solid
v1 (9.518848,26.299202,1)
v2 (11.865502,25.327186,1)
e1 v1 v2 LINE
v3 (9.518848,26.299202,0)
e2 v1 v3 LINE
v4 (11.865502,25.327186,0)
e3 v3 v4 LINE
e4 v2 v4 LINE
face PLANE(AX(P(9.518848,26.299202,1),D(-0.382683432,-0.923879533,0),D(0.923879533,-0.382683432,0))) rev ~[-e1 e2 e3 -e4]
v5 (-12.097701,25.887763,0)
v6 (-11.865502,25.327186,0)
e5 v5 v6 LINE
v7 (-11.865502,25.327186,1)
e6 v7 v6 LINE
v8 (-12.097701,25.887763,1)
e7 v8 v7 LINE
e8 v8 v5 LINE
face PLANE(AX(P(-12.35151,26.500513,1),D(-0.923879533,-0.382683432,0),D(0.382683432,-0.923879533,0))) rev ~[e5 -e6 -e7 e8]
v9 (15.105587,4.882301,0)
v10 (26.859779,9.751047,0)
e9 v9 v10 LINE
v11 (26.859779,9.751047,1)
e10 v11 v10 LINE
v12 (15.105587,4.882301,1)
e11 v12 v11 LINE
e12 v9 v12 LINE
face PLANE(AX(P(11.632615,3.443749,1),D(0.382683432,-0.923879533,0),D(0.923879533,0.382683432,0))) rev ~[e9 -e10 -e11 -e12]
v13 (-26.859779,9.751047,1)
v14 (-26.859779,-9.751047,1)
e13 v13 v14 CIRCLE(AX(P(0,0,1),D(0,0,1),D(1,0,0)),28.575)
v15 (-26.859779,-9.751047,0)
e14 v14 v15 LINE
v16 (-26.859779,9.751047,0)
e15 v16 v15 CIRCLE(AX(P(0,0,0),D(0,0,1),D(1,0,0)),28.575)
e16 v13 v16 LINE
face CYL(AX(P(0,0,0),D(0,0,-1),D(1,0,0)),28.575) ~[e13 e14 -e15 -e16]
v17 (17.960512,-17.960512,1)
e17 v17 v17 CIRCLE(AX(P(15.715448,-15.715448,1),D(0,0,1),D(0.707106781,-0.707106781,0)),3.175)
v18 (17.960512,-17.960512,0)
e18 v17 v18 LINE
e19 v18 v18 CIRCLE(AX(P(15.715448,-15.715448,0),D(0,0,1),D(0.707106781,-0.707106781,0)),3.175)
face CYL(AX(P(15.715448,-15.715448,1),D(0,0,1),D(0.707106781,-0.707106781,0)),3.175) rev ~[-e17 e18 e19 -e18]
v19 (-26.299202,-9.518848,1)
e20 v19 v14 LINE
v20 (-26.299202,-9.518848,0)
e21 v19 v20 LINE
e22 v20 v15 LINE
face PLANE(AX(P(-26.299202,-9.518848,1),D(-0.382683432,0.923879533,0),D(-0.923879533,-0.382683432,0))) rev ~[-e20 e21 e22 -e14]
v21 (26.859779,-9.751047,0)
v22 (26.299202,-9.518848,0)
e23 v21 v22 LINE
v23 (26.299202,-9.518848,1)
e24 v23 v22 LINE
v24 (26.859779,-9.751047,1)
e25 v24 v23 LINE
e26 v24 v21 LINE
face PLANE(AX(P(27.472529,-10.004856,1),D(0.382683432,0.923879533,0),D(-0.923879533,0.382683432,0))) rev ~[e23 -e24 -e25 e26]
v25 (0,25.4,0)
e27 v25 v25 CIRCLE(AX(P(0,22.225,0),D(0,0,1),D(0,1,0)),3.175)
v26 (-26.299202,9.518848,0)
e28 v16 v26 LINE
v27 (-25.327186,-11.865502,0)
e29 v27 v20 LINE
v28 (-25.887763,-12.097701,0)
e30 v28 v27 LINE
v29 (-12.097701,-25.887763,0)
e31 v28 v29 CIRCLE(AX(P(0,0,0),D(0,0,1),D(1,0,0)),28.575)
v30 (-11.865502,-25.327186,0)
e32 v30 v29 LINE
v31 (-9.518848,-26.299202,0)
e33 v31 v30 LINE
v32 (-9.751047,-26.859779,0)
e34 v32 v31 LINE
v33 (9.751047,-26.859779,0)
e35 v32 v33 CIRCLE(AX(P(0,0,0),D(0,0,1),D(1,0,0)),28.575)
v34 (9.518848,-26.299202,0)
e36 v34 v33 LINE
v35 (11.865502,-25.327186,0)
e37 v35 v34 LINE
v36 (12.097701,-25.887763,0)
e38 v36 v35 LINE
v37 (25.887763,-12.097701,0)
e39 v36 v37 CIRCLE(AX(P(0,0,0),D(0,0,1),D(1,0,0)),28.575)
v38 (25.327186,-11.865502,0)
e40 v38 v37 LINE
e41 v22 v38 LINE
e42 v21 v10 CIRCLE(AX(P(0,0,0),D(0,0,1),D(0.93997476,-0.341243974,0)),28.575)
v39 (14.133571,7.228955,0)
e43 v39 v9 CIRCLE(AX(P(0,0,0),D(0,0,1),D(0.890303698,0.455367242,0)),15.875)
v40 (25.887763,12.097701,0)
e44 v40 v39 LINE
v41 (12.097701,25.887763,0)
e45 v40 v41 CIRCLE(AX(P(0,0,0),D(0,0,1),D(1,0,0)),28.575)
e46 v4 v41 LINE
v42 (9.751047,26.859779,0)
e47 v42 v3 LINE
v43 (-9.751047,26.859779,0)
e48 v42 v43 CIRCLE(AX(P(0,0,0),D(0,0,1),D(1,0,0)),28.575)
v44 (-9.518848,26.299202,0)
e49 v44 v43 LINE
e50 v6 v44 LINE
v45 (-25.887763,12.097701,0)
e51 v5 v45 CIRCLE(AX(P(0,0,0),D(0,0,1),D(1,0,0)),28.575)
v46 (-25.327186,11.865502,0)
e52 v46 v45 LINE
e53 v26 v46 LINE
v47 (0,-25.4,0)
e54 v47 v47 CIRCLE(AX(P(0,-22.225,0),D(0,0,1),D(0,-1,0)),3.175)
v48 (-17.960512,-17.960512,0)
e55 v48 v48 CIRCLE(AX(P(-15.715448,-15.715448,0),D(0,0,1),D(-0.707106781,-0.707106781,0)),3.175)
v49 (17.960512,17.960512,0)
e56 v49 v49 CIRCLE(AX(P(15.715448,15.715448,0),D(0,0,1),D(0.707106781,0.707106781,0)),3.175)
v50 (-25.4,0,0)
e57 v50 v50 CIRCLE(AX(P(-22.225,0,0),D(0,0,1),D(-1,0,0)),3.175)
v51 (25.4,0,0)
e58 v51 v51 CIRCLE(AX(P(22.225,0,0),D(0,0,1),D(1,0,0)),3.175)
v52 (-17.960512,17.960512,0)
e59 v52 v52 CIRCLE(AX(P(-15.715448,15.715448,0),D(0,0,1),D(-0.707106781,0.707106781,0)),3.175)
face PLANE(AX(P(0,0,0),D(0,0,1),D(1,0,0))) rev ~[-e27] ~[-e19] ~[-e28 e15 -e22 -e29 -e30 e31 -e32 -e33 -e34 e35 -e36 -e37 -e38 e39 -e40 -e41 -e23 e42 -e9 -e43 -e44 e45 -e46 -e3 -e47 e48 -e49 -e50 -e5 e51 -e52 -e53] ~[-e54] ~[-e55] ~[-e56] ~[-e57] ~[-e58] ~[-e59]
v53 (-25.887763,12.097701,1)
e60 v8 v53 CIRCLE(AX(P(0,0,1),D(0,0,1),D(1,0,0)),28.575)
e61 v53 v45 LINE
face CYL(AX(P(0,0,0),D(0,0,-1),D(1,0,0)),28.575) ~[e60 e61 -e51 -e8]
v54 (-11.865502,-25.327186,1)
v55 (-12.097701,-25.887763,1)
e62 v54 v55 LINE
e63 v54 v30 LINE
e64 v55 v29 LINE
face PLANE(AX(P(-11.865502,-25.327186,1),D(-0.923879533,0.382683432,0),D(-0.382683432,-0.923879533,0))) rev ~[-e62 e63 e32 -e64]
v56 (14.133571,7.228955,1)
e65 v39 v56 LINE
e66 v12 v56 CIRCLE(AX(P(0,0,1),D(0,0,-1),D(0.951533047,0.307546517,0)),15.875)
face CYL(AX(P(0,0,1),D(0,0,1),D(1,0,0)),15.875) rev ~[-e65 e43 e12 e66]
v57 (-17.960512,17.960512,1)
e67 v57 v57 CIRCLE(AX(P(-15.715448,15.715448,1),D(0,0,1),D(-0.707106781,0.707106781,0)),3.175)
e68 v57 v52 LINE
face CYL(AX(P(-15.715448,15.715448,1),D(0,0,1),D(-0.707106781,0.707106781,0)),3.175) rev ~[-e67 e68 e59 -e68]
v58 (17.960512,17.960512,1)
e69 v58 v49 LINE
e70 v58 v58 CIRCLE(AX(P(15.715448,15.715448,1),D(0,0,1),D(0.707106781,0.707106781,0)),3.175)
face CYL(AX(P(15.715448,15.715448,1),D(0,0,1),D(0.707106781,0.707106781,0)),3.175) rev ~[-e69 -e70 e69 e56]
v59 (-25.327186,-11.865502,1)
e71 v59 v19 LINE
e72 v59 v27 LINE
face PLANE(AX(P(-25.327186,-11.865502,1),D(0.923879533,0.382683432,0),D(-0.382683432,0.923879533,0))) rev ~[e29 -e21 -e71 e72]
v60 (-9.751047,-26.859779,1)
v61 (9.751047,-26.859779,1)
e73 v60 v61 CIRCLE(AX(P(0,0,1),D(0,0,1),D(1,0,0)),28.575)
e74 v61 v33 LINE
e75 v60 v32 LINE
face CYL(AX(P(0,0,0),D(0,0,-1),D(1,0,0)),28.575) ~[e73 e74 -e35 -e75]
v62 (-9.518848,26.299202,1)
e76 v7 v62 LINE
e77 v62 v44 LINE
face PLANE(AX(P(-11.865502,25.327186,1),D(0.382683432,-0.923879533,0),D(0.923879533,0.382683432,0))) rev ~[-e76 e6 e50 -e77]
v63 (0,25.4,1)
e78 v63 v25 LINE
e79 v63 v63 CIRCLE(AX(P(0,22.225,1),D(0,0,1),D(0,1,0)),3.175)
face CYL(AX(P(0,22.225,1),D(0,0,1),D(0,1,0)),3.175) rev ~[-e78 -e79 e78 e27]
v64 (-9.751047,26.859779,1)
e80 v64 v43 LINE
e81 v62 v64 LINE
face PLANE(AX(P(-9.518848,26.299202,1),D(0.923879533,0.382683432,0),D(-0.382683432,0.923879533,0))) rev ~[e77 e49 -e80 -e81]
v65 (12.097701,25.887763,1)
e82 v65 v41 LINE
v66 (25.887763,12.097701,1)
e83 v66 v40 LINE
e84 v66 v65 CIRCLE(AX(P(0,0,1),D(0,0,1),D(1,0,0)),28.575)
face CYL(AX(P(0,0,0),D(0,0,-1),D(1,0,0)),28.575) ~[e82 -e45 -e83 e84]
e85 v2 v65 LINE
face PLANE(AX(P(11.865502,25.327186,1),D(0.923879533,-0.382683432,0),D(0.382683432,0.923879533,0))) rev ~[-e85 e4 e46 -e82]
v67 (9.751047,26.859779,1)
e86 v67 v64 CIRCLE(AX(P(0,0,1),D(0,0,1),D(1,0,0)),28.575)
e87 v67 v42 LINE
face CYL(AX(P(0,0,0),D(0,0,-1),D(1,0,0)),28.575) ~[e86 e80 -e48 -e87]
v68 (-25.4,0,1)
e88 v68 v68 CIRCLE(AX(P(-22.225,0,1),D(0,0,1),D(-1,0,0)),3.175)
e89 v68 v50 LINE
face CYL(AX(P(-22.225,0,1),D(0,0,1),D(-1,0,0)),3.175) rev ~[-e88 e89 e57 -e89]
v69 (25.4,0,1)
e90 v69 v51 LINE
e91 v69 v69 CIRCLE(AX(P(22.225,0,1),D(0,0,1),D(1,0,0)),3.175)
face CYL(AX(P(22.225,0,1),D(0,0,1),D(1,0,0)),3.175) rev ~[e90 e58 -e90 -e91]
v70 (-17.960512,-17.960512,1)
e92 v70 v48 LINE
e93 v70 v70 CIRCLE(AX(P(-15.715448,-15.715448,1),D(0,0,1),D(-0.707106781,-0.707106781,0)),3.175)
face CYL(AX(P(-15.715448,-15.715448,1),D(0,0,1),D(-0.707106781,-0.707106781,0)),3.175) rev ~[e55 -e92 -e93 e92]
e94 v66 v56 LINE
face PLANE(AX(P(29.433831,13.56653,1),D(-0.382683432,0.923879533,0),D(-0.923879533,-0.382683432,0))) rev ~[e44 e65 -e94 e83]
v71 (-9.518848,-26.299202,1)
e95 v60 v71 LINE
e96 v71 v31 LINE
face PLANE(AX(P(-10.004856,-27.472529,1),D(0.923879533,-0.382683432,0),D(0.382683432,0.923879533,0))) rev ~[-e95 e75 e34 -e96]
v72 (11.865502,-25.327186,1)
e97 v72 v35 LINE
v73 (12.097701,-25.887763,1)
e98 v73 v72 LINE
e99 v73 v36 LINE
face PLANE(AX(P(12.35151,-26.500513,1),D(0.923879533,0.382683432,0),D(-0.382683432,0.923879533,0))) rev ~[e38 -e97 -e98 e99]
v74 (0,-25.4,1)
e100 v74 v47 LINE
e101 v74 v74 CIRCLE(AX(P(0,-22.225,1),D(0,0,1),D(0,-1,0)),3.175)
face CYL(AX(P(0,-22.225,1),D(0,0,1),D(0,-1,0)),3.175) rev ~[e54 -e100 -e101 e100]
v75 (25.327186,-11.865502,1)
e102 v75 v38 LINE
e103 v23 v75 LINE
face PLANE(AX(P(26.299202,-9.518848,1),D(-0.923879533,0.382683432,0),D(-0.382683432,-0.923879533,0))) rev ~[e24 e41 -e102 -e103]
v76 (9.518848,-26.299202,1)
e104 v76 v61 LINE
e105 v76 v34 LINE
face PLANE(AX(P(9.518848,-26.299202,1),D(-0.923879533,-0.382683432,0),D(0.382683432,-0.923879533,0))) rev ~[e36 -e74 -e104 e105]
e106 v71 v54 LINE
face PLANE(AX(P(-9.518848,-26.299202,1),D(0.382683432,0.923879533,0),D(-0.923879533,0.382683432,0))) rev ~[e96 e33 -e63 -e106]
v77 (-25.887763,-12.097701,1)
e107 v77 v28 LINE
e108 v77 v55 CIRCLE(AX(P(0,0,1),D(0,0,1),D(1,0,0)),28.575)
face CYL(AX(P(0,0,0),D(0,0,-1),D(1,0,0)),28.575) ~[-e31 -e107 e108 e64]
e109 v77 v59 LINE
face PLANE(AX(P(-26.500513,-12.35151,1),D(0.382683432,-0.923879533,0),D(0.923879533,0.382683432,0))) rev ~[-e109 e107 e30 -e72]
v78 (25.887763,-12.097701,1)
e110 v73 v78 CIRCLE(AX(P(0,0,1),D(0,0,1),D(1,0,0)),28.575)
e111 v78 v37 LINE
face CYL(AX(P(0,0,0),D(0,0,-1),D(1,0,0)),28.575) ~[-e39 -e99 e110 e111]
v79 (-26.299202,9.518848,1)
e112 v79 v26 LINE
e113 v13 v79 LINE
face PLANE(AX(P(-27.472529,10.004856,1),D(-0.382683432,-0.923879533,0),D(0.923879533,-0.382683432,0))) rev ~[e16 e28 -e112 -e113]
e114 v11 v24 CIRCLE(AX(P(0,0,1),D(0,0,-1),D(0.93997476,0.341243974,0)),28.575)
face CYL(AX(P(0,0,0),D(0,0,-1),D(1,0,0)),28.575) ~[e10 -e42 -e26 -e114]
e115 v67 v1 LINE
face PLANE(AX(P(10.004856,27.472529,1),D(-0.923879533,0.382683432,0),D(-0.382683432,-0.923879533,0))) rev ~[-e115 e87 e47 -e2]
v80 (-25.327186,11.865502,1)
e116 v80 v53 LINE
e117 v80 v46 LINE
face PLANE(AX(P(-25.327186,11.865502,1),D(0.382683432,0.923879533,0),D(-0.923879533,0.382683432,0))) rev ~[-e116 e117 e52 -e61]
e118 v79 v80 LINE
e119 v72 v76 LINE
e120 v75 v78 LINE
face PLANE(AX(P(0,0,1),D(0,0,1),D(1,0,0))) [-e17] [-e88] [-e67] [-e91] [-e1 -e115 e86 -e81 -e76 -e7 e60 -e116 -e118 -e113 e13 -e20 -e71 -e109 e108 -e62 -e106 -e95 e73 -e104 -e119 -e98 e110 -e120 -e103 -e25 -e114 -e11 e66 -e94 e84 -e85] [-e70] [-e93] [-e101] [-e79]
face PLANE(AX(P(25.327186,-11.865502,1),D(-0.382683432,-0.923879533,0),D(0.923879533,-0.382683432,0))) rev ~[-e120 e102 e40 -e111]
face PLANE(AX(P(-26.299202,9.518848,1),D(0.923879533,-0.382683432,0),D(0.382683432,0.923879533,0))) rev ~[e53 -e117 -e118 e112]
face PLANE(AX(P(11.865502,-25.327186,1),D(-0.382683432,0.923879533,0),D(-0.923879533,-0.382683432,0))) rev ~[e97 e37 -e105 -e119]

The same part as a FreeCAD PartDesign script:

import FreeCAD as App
import Part
import Sketcher
from FreeCAD import Vector
Q = App.Units.Quantity


def add_polygon(sketch, points):
    """Adds a closed chain of lines whose ends are joined by coincident constraints."""
    first, n = sketch.GeometryCount, len(points)
    for a, b in zip(points, points[1:] + points[:1]):
        sketch.addGeometry(Part.LineSegment(App.Vector(*a, 0), App.Vector(*b, 0)), False)
    for i in range(n):
        sketch.addConstraint(Sketcher.Constraint("Coincident", first + i, 2, first + (i + 1) % n, 1))

doc = App.newDocument("Part")
body = doc.addObject("PartDesign::Body", "Body")

sketch1 = body.newObject("Sketcher::SketchObject", "Sketch")
sketch1.AttachmentSupport = (doc.getObject("XY_Plane"), [""])
sketch1.MapMode = "FlatFace"
sketch1.addGeometry(Part.Circle(Vector(0, 0, 0), Vector(0, 0, 1), 28.575), False)
sketch1.addConstraint([
    Sketcher.Constraint("Coincident", 0, 3, -1, 1),
    Sketcher.Constraint("Diameter", 0, Q("2.25 in")),
])
pad1 = body.newObject("PartDesign::Pad", "Pad")
pad1.Profile = sketch1
pad1.Length = 1

sketch2 = body.newObject("Sketcher::SketchObject", "Sketch001")
sketch2.AttachmentSupport = (doc.getObject("XY_Plane"), [""])
sketch2.MapMode = "FlatFace"
sketch2.AttachmentOffset = App.Placement(Vector(0, 0, 1), App.Rotation())
sketch2.addGeometry(Part.Circle(Vector(0, 0, 0), Vector(0, 0, 1), 15.875), False)
sketch2.addConstraint([
    Sketcher.Constraint("Coincident", 0, 3, -1, 1),
    Sketcher.Constraint("Diameter", 0, Q("1.25 in")),
])
pocket1 = body.newObject("PartDesign::Pocket", "Pocket")
pocket1.Profile = sketch2
pocket1.Type = "ThroughAll"

sketch3 = body.newObject("Sketcher::SketchObject", "Sketch002")
sketch3.AttachmentSupport = (doc.getObject("XY_Plane"), [""])
sketch3.MapMode = "FlatFace"
sketch3.AttachmentOffset = App.Placement(Vector(0, 0, 1), App.Rotation())
sketch3.addGeometry(Part.Circle(Vector(22.225, 0, 0), Vector(0, 0, 1), 3.175), False)
sketch3.addConstraint([
    Sketcher.Constraint("PointOnObject", 0, 3, -1),
    Sketcher.Constraint("Diameter", 0, Q("0.25 in")),
    Sketcher.Constraint("DistanceX", -1, 1, 0, 3, Q("0.875 in")),
])
pocket2 = body.newObject("PartDesign::Pocket", "Pocket001")
pocket2.Profile = sketch3
pocket2.Type = "ThroughAll"
doc.recompute()

polarpattern = body.newObject("PartDesign::PolarPattern", "PolarPattern")
polarpattern.Originals = [pocket2]
polarpattern.Axis = (doc.getObject("Z_Axis"), [""])
polarpattern.Angle = 360
polarpattern.Occurrences = 8
body.Tip = polarpattern

sketch4 = body.newObject("Sketcher::SketchObject", "Sketch003")
sketch4.AttachmentSupport = (doc.getObject("XY_Plane"), [""])
sketch4.MapMode = "FlatFace"
sketch4.AttachmentOffset = App.Placement(Vector(0, 0, 1), App.Rotation())
add_polygon(sketch4, [(29.433831, 13.56653), (10.660599, 5.790403), (11.632615, 3.443749), (30.405847, 11.219876)])
add_polygon(sketch4, [(12.35151, 26.500513), (10.004856, 27.472529), (9.518848, 26.299202), (11.865502, 25.327186)])
add_polygon(sketch4, [(-10.004856, 27.472529), (-12.35151, 26.500513), (-11.865502, 25.327186), (-9.518848, 26.299202)])
add_polygon(sketch4, [(-26.500513, 12.35151), (-27.472529, 10.004856), (-26.299202, 9.518848), (-25.327186, 11.865502)])
add_polygon(sketch4, [(-27.472529, -10.004856), (-26.500513, -12.35151), (-25.327186, -11.865502), (-26.299202, -9.518848)])
add_polygon(sketch4, [(-12.35151, -26.500513), (-10.004856, -27.472529), (-9.518848, -26.299202), (-11.865502, -25.327186)])
add_polygon(sketch4, [(10.004856, -27.472529), (12.35151, -26.500513), (11.865502, -25.327186), (9.518848, -26.299202)])
add_polygon(sketch4, [(26.500513, -12.35151), (27.472529, -10.004856), (26.299202, -9.518848), (25.327186, -11.865502)])
sketch4.addConstraint([
    Sketcher.Constraint("Symmetric", 4, 2, 20, 2, -1, 1),
    Sketcher.Constraint("Symmetric", 5, 2, 21, 2, -1, 1),
    Sketcher.Constraint("Symmetric", 6, 2, 22, 2, -1, 1),
    Sketcher.Constraint("Symmetric", 7, 2, 23, 2, -1, 1),
    Sketcher.Constraint("Symmetric", 8, 2, 24, 2, -1, 1),
    Sketcher.Constraint("Symmetric", 9, 2, 25, 2, -1, 1),
    Sketcher.Constraint("Symmetric", 10, 2, 26, 2, -1, 1),
    Sketcher.Constraint("Symmetric", 11, 2, 27, 2, -1, 1),
    Sketcher.Constraint("Symmetric", 12, 2, 28, 2, -1, 1),
    Sketcher.Constraint("Symmetric", 13, 2, 29, 2, -1, 1),
    Sketcher.Constraint("Symmetric", 14, 2, 30, 2, -1, 1),
    Sketcher.Constraint("Symmetric", 15, 2, 31, 2, -1, 1),
    Sketcher.Constraint("Symmetric", 7, 2, 8, 2, -2),
    Sketcher.Constraint("Symmetric", 6, 2, 9, 2, -2),
    Sketcher.Constraint("Symmetric", 5, 2, 10, 2, -2),
    Sketcher.Constraint("Symmetric", 4, 2, 11, 2, -2),
    Sketcher.Constraint("Symmetric", 19, 2, 28, 2, -2),
    Sketcher.Constraint("Symmetric", 18, 2, 29, 2, -2),
    Sketcher.Constraint("Symmetric", 17, 2, 30, 2, -2),
    Sketcher.Constraint("Symmetric", 16, 2, 31, 2, -2),
    Sketcher.Constraint("Perpendicular", 0, 1),
    Sketcher.Constraint("Perpendicular", 1, 2),
    Sketcher.Constraint("Perpendicular", 2, 3),
    Sketcher.Constraint("Perpendicular", 4, 5),
    Sketcher.Constraint("Perpendicular", 5, 6),
    Sketcher.Constraint("Perpendicular", 6, 7),
    Sketcher.Constraint("Perpendicular", 3, 8),
    Sketcher.Constraint("Parallel", 7, 12),
    Sketcher.Constraint("Perpendicular", 12, 13),
    Sketcher.Constraint("Perpendicular", 13, 14),
    Sketcher.Constraint("Perpendicular", 14, 15),
    Sketcher.Constraint("Equal", 3, 4),
    Sketcher.Constraint("Equal", 10, 12),
    Sketcher.Constraint("Equal", 11, 13),
    Sketcher.Constraint("Distance", 0, Q("0.8 in")),
    Sketcher.Constraint("Distance", 1, Q("0.1 in")),
    Sketcher.Constraint("Angle", 0, Q("-157.5 deg")),
    Sketcher.Constraint("Distance", 5, Q("0.05 in")),
    Sketcher.Constraint("DistanceX", -1, 1, 0, 2, Q("10.660599 mm")),
    Sketcher.Constraint("DistanceY", 3, 2, 4, 2, Q("13.905999 mm")),
    Sketcher.Constraint("DistanceX", 5, 2, 2, 2, Q("20.886999 mm")),
    Sketcher.Constraint("DistanceX", 13, 2, 9, 2, Q("14.4337 mm")),
    Sketcher.Constraint("DistanceY", 14, 2, 10, 2, Q("14.4337 mm")),
    Sketcher.Constraint("DistanceY", -1, 1, 1, 2, Q("3.443749 mm")),
])
pocket3 = body.newObject("PartDesign::Pocket", "Pocket002")
pocket3.Profile = sketch4
pocket3.Type = "ThroughAll"

doc.recompute()
